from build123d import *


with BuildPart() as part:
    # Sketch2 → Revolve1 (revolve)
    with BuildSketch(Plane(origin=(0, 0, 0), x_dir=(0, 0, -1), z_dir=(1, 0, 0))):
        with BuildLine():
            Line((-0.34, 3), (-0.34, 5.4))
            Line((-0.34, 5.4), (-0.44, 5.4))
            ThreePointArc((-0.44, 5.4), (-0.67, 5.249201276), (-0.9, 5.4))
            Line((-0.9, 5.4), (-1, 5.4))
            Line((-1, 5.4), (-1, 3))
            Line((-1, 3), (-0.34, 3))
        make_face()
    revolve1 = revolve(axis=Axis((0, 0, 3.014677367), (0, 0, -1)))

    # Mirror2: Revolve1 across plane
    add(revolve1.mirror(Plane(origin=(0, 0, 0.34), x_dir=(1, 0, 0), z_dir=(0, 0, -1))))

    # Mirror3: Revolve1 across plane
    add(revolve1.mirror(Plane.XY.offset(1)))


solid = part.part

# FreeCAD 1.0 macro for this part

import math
import FreeCAD as App
import Part
import Sketcher
Q = App.Units.Quantity

doc = App.newDocument("Part")
params = doc.addObject("Spreadsheet::Sheet", "Params")
for row, (alias, value) in enumerate([
    ("sketch1_width", "2.4 mm"),
    ("sketch1_height", "0.1 mm"),
    ("sketch1_height2", "0.66 mm"),
    ("revolution_angle", "360 deg"),
], start=1):
    params.set(f"A{row}", alias)
    params.set(f"B{row}", "=" + value)
    params.setAlias(f"B{row}", alias)

body = doc.addObject("PartDesign::Body", "Body")

sketch1 = body.newObject("Sketcher::SketchObject", "Sketch")
sketch1.AttachmentSupport = (doc.getObject("YZ_Plane"), [""])
sketch1.MapMode = "FlatFace"
sketch1.addGeometry([
    Part.LineSegment(App.Vector(3, 0.34, 0), App.Vector(5.4, 0.34, 0)),
    Part.LineSegment(App.Vector(5.4, 0.34, 0), App.Vector(5.4, 0.44, 0)),
    Part.ArcOfCircle(Part.Circle(App.Vector(5.5, 0.67, 0), App.Vector(0, 0, 1), 0.25), math.radians(113), math.radians(247)),
    Part.LineSegment(App.Vector(5.4, 0.9, 0), App.Vector(5.4, 1, 0)),
    Part.LineSegment(App.Vector(5.4, 1, 0), App.Vector(3, 1, 0)),
    Part.LineSegment(App.Vector(3, 1, 0), App.Vector(3, 0.34, 0)),
], False)
sketch1.addConstraint([
    Sketcher.Constraint("Coincident", 0, 2, 1, 1),
    Sketcher.Constraint("Coincident", 1, 2, 2, 2),
    Sketcher.Constraint("Coincident", 2, 1, 3, 1),
    Sketcher.Constraint("Coincident", 3, 2, 4, 1),
    Sketcher.Constraint("Coincident", 4, 2, 5, 1),
    Sketcher.Constraint("Coincident", 5, 2, 0, 1),
    Sketcher.Constraint("Horizontal", 0),
    Sketcher.Constraint("Vertical", 1),
    Sketcher.Constraint("Vertical", 3),
    Sketcher.Constraint("Horizontal", 4),
    Sketcher.Constraint("Vertical", 5),
    Sketcher.Constraint("Vertical", 1, 2, 2, 1),
    Sketcher.Constraint("Equal", 1, 3),
    Sketcher.Constraint("DistanceX", 0, 1, 0, 2, Q("2.4 mm")),
    Sketcher.Constraint("DistanceY", 1, 1, 1, 2, Q("0.1 mm")),
    Sketcher.Constraint("DistanceY", -1, 1, 3, 2, Q("1 mm")),
    Sketcher.Constraint("DistanceX", -1, 1, 4, 2, Q("3 mm")),
    Sketcher.Constraint("DistanceY", 5, 2, 5, 1, Q("0.66 mm")),
    Sketcher.Constraint("DistanceX", -1, 1, 2, 3, Q("5.5 mm")),
])
sketch1.setExpression("Constraints[13]", "Params.sketch1_width")
sketch1.setExpression("Constraints[14]", "Params.sketch1_height")
sketch1.setExpression("Constraints[17]", "Params.sketch1_height2")
revolution = body.newObject("PartDesign::Revolution", "Revolution")
revolution.Profile = sketch1
revolution.ReferenceAxis = (sketch1, ["V_Axis"])
revolution.setExpression("Angle", "Params.revolution_angle")
doc.recompute()

datumplane = body.newObject("PartDesign::Plane", "DatumPlane")
datumplane.AttachmentSupport = (doc.getObject("XY_Plane"), [""])
datumplane.MapMode = "FlatFace"
datumplane.AttachmentOffset = App.Placement(App.Vector(0, 0, 0.34), App.Rotation())
mirrored = body.newObject("PartDesign::Mirrored", "Mirrored")
mirrored.Originals = [revolution]
mirrored.MirrorPlane = (datumplane, [""])
body.Tip = mirrored
doc.recompute()

datumplane2 = body.newObject("PartDesign::Plane", "DatumPlane001")
datumplane2.AttachmentSupport = (doc.getObject("XY_Plane"), [""])
datumplane2.MapMode = "FlatFace"
datumplane2.AttachmentOffset = App.Placement(App.Vector(0, 0, 1), App.Rotation())
mirrored2 = body.newObject("PartDesign::Mirrored", "Mirrored001")
mirrored2.Originals = [revolution]
mirrored2.MirrorPlane = (datumplane2, [""])
body.Tip = mirrored2

doc.recompute()
